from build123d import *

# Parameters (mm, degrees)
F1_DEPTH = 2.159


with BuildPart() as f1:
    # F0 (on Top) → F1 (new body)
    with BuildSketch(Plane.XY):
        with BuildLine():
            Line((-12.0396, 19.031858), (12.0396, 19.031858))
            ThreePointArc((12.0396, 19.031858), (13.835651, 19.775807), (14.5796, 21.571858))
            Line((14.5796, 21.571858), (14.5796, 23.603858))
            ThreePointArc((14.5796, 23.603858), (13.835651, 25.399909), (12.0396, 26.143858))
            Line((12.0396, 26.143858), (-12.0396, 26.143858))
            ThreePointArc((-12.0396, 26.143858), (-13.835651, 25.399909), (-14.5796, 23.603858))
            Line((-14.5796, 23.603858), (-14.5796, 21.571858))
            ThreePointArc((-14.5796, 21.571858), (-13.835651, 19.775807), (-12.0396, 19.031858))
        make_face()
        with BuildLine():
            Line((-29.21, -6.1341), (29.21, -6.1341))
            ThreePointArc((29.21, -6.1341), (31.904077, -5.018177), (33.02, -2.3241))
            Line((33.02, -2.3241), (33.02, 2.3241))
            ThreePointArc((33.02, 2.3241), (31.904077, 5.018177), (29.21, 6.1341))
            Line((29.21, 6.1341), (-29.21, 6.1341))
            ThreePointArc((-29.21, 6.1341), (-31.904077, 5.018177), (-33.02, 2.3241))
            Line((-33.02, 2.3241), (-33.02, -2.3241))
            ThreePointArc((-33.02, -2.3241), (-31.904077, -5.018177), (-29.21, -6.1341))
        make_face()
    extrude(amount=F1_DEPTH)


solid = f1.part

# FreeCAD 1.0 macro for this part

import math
import FreeCAD as App
import Part
import Sketcher

V = App.Vector
Q = App.Units.Quantity

doc = App.newDocument("Part")
body = doc.addObject("PartDesign::Body", "Body")
body.AllowCompound = True

# Sketch on XY plane
sketch1 = body.newObject("Sketcher::SketchObject", "Sketch")
sketch1.AttachmentSupport = (doc.getObject("XY_Plane"), [""])
sketch1.MapMode = "FlatFace"
sketch1.addGeometry([
    Part.LineSegment(V(-12, 19, 0), V(12, 19, 0)),  # 0
    Part.ArcOfCircle(Part.Circle(V(12, 21.6, 0), V(0, 0, 1), 2.5), math.radians(-90), math.radians(0)),  # 1
    Part.LineSegment(V(14.6, 21.6, 0), V(14.6, 23.6, 0)),  # 2
    Part.ArcOfCircle(Part.Circle(V(12, 23.6, 0), V(0, 0, 1), 2.5), math.radians(0), math.radians(90)),  # 3
    Part.LineSegment(V(12, 26.1, 0), V(-12, 26.1, 0)),  # 4
    Part.ArcOfCircle(Part.Circle(V(-12, 23.6, 0), V(0, 0, 1), 2.5), math.radians(90), math.radians(180)),  # 5
    Part.LineSegment(V(-14.6, 23.6, 0), V(-14.6, 21.6, 0)),  # 6
    Part.ArcOfCircle(Part.Circle(V(-12, 21.6, 0), V(0, 0, 1), 2.5), math.radians(-180), math.radians(-90)),  # 7
    Part.LineSegment(V(-29.2, -6.1, 0), V(29.2, -6.1, 0)),  # 8
    Part.ArcOfCircle(Part.Circle(V(29.2, -2.3, 0), V(0, 0, 1), 3.8), math.radians(-90), math.radians(0)),  # 9
    Part.LineSegment(V(33, -2.3, 0), V(33, 2.3, 0)),  # 10
    Part.ArcOfCircle(Part.Circle(V(29.2, 2.3, 0), V(0, 0, 1), 3.8), math.radians(0), math.radians(90)),  # 11
    Part.LineSegment(V(29.2, 6.1, 0), V(-29.2, 6.1, 0)),  # 12
    Part.ArcOfCircle(Part.Circle(V(-29.2, 2.3, 0), V(0, 0, 1), 3.8), math.radians(90), math.radians(180)),  # 13
    Part.LineSegment(V(-33, 2.3, 0), V(-33, -2.3, 0)),  # 14
    Part.ArcOfCircle(Part.Circle(V(-29.2, -2.3, 0), V(0, 0, 1), 3.8), math.radians(180), math.radians(270)),  # 15
], False)
sketch1.addConstraint([
    Sketcher.Constraint("Tangent", 0, 2, 1, 1),
    Sketcher.Constraint("Tangent", 1, 2, 2, 1),
    Sketcher.Constraint("Tangent", 2, 2, 3, 1),
    Sketcher.Constraint("Tangent", 3, 2, 4, 1),
    Sketcher.Constraint("Tangent", 4, 2, 5, 1),
    Sketcher.Constraint("Tangent", 5, 2, 6, 1),
    Sketcher.Constraint("Tangent", 6, 2, 7, 1),
    Sketcher.Constraint("Tangent", 7, 2, 0, 1),
    Sketcher.Constraint("Tangent", 8, 2, 9, 1),
    Sketcher.Constraint("Tangent", 9, 2, 10, 1),
    Sketcher.Constraint("Tangent", 10, 2, 11, 1),
    Sketcher.Constraint("Tangent", 11, 2, 12, 1),
    Sketcher.Constraint("Tangent", 12, 2, 13, 1),
    Sketcher.Constraint("Tangent", 13, 2, 14, 1),
    Sketcher.Constraint("Tangent", 14, 2, 15, 1),
    Sketcher.Constraint("Tangent", 15, 2, 8, 1),
    Sketcher.Constraint("Horizontal", 0),
    Sketcher.Constraint("Vertical", 2),
    Sketcher.Constraint("Horizontal", 4),
    Sketcher.Constraint("Vertical", 6),
    Sketcher.Constraint("Horizontal", 8),
    Sketcher.Constraint("Vertical", 10),
    Sketcher.Constraint("Horizontal", 12),
    Sketcher.Constraint("Vertical", 14),
    Sketcher.Constraint("Equal", 1, 3),
    Sketcher.Constraint("Equal", 3, 5),
    Sketcher.Constraint("Equal", 5, 7),
    Sketcher.Constraint("Equal", 9, 11),
    Sketcher.Constraint("Equal", 11, 13),
    Sketcher.Constraint("Equal", 13, 15),
    Sketcher.Constraint("Symmetric", 9, 3, 13, 3, -1, 1),
    Sketcher.Constraint("Radius", 1, Q("0.1 in")),
    Sketcher.Constraint("Radius", 9, Q("0.15 in")),
    Sketcher.Constraint("DistanceX", 8, 1, 8, 2, Q("2.3 in")),
    Sketcher.Constraint("DistanceY", 2, 1, 2, 2, Q("0.08 in")),
    Sketcher.Constraint("DistanceX", 0, 1, 0, 2, Q("0.948 in")),
    Sketcher.Constraint("DistanceY", 10, 1, 10, 2, Q("0.183 in")),
    Sketcher.Constraint("DistanceX", -1, 1, 1, 3, Q("0.474 in")),
    Sketcher.Constraint("DistanceY", -1, 1, 1, 3, 21.571859),
])
pad1 = body.newObject("PartDesign::Pad", "Pad")
pad1.Profile = sketch1
pad1.Length = Q("0.085 in")

doc.recompute()
